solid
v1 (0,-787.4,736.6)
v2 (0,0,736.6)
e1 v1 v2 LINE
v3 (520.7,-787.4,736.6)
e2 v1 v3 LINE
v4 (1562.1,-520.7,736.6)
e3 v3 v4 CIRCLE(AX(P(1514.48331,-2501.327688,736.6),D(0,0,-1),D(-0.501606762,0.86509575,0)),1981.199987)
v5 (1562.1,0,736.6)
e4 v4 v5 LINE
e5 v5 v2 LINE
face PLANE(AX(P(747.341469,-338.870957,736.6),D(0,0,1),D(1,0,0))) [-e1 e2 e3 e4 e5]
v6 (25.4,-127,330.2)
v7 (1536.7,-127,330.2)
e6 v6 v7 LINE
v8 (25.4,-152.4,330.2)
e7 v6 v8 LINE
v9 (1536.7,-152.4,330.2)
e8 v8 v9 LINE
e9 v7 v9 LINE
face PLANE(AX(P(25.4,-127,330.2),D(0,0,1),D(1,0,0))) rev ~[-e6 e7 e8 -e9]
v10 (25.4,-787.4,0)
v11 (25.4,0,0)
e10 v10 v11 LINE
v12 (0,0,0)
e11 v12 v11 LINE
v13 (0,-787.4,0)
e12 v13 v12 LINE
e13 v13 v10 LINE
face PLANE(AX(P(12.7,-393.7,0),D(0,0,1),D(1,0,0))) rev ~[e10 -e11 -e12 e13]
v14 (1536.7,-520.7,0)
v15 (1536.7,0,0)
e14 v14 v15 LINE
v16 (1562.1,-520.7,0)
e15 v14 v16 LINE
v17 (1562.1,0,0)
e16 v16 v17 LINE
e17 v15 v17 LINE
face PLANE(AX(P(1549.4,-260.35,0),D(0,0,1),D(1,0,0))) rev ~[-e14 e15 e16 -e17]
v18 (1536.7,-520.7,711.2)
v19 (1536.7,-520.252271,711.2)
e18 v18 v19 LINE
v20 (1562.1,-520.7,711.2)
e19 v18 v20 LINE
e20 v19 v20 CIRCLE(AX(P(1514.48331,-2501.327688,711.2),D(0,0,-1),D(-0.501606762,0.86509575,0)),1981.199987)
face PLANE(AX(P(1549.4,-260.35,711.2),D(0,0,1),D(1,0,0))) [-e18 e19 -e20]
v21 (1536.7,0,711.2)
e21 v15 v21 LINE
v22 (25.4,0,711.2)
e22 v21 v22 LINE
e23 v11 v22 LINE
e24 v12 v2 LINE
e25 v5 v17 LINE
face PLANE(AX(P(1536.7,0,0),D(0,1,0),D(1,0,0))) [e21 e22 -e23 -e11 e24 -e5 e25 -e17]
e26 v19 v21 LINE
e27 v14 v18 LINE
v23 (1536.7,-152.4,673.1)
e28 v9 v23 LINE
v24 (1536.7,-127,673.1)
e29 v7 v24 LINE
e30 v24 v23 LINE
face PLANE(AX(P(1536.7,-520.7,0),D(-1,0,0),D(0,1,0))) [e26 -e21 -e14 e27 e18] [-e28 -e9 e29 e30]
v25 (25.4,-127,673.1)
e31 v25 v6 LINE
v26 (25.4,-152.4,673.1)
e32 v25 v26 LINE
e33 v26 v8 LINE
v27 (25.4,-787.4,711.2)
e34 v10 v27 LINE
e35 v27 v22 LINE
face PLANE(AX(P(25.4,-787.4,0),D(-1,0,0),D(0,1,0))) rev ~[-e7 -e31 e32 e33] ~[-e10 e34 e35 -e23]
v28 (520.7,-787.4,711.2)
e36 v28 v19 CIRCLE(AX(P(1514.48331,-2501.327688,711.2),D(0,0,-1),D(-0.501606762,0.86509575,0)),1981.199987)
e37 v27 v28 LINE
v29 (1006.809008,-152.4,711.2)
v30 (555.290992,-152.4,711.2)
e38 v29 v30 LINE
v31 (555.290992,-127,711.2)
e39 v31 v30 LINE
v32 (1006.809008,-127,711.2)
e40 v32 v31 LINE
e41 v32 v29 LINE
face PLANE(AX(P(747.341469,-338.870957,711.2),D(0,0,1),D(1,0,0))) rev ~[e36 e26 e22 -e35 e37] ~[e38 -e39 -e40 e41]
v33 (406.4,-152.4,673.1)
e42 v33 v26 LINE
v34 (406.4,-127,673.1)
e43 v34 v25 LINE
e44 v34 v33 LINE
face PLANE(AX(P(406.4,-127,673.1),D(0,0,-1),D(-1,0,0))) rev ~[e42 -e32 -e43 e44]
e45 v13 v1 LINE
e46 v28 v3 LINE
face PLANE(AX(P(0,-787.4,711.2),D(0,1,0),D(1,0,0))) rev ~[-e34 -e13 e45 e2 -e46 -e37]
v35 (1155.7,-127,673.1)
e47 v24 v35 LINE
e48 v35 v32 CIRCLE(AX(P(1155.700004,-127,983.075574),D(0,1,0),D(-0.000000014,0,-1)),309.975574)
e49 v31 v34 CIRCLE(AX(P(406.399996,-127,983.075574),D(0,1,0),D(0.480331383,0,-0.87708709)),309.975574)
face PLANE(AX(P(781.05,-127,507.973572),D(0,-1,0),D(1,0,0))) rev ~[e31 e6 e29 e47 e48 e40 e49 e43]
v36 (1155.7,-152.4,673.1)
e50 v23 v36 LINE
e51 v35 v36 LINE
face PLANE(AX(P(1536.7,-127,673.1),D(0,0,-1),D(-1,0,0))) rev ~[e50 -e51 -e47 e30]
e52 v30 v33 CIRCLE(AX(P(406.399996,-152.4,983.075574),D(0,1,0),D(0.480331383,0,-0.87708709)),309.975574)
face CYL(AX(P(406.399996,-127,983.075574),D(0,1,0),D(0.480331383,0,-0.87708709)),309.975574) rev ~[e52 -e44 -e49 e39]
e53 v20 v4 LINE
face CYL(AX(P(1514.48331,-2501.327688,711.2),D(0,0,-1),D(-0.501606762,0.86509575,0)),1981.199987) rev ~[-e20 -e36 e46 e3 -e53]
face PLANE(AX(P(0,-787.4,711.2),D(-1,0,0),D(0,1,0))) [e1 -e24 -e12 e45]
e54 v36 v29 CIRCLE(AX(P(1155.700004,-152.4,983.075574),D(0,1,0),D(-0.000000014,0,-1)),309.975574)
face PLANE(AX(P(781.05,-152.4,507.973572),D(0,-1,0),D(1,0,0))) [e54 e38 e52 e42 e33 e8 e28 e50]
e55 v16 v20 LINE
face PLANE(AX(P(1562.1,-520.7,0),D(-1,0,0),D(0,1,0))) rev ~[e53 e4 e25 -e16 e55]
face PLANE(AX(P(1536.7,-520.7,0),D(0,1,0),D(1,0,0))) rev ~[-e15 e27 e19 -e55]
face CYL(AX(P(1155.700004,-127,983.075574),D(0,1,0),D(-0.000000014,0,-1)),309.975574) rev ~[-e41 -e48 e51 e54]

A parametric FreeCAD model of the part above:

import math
import FreeCAD as App
import Part
import Sketcher
from FreeCAD import Vector
Q = App.Units.Quantity


def add_polygon(sketch, points):
    """Adds a closed chain of lines whose ends are joined by coincident constraints."""
    first, n = sketch.GeometryCount, len(points)
    for a, b in zip(points, points[1:] + points[:1]):
        sketch.addGeometry(Part.LineSegment(App.Vector(*a, 0), App.Vector(*b, 0)), False)
    for i in range(n):
        sketch.addConstraint(Sketcher.Constraint("Coincident", first + i, 2, first + (i + 1) % n, 1))

doc = App.newDocument("Part")
params = doc.addObject("Spreadsheet::Sheet", "Params")
for row, (alias, value) in enumerate([
    ("sketch1_width", "1 in"),
    ("sketch1_height", "31 in"),
    ("pad1_length", "28 in"),
    ("sketch2_height", "31 in"),
    ("sketch2_width", "61.5 in"),
    ("sketch2_width2", "20.5 in"),
    ("pad2_length", "1 in"),
    ("sketch3_width", "1 in"),
    ("sketch3_height", "20.5 in"),
    ("pad3_length", "28 in"),
    ("sketch4_width", "15 in"),
    ("sketch4_width2", "59.5 in"),
    ("sketch4_height", "13.5 in"),
    ("pad4_length", "1 in"),
], start=1):
    params.set(f"A{row}", alias)
    params.set(f"B{row}", "=" + value)
    params.setAlias(f"B{row}", alias)

body = doc.addObject("PartDesign::Body", "Body")

# Sketch on XY plane
sketch1 = doc.addObject("Sketcher::SketchObject", "Sketch")
body.addObject(sketch1)
sketch1.AttachmentSupport = (doc.XY_Plane, [""])
sketch1.MapMode = "FlatFace"
add_polygon(sketch1, [(0, 0), (0, -787), (25, -787), (25, 0)])  # lines 0-3
sketch1.addConstraint(Sketcher.Constraint("Vertical", 0))
sketch1.addConstraint(Sketcher.Constraint("Horizontal", 1))
sketch1.addConstraint(Sketcher.Constraint("Vertical", 2))
sketch1.addConstraint(Sketcher.Constraint("Horizontal", 3))
sketch1.addConstraint(Sketcher.Constraint("Coincident", 3, 2, -1, 1))
sketch1.addConstraint(Sketcher.Constraint("DistanceX", 1, 1, 1, 2, Q("1 in")))
sketch1.addConstraint(Sketcher.Constraint("DistanceY", 0, 2, 0, 1, Q("31 in")))
sketch1.setExpression("Constraints[9]", "Params.sketch1_width")
sketch1.setExpression("Constraints[10]", "Params.sketch1_height")
pad1 = doc.addObject("PartDesign::Pad", "Pad")
body.addObject(pad1)
pad1.Profile = sketch1
pad1.setExpression("Length", "Params.pad1_length")

# Sketch on XY plane
sketch2 = doc.addObject("Sketcher::SketchObject", "Sketch001")
body.addObject(sketch2)
sketch2.AttachmentSupport = (doc.XY_Plane, [""])
sketch2.MapMode = "FlatFace"
sketch2.AttachmentOffset = App.Placement(Vector(0, 0, 28 * 25.4), App.Rotation())
sketch2.addGeometry(Part.LineSegment(Vector(1562, 0, 0), Vector(0, 0, 0)), False)
sketch2.addGeometry(Part.LineSegment(Vector(0, 0, 0), Vector(0, -787, 0)), False)
sketch2.addGeometry(Part.LineSegment(Vector(0, -787, 0), Vector(521, -787, 0)), False)
sketch2.addGeometry(Part.ArcOfCircle(Part.Circle(Vector(1514, -2501, 0), Vector(0, 0, 1), 1981), math.radians(89), math.radians(120)), False)
sketch2.addGeometry(Part.LineSegment(Vector(1562, -521, 0), Vector(1562, 0, 0)), False)
sketch2.addConstraint(Sketcher.Constraint("Coincident", 0, 2, 1, 1))
sketch2.addConstraint(Sketcher.Constraint("Coincident", 1, 2, 2, 1))
sketch2.addConstraint(Sketcher.Constraint("Coincident", 2, 2, 3, 2))
sketch2.addConstraint(Sketcher.Constraint("Coincident", 3, 1, 4, 1))
sketch2.addConstraint(Sketcher.Constraint("Coincident", 4, 2, 0, 1))
sketch2.addConstraint(Sketcher.Constraint("Horizontal", 0))
sketch2.addConstraint(Sketcher.Constraint("Vertical", 1))
sketch2.addConstraint(Sketcher.Constraint("Horizontal", 2))
sketch2.addConstraint(Sketcher.Constraint("Vertical", 4))
sketch2.addConstraint(Sketcher.Constraint("Coincident", 0, 2, -1, 1))
sketch2.addConstraint(Sketcher.Constraint("Equal", 2, 4))
sketch2.addConstraint(Sketcher.Constraint("DistanceY", 1, 2, 1, 1, Q("31 in")))
sketch2.addConstraint(Sketcher.Constraint("DistanceX", 0, 2, 0, 1, Q("61.5 in")))
sketch2.addConstraint(Sketcher.Constraint("DistanceX", 2, 1, 2, 2, Q("20.5 in")))
sketch2.addConstraint(Sketcher.Constraint("Radius", 3, Q("1981.199987 mm")))
sketch2.setExpression("Constraints[11]", "Params.sketch2_height")
sketch2.setExpression("Constraints[12]", "Params.sketch2_width")
sketch2.setExpression("Constraints[13]", "Params.sketch2_width2")
pad2 = doc.addObject("PartDesign::Pad", "Pad001")
body.addObject(pad2)
pad2.Profile = sketch2
pad2.setExpression("Length", "Params.pad2_length")

# Sketch on XY plane
sketch3 = doc.addObject("Sketcher::SketchObject", "Sketch002")
body.addObject(sketch3)
sketch3.AttachmentSupport = (doc.XY_Plane, [""])
sketch3.MapMode = "FlatFace"
add_polygon(sketch3, [(1537, 0), (1537, -521), (1562, -521), (1562, 0)])  # lines 0-3
sketch3.addConstraint(Sketcher.Constraint("Vertical", 0))
sketch3.addConstraint(Sketcher.Constraint("Horizontal", 1))
sketch3.addConstraint(Sketcher.Constraint("Vertical", 2))
sketch3.addConstraint(Sketcher.Constraint("Horizontal", 3))
sketch3.addConstraint(Sketcher.Constraint("PointOnObject", 2, 2, -1))
sketch3.addConstraint(Sketcher.Constraint("DistanceX", 1, 1, 1, 2, Q("1 in")))
sketch3.addConstraint(Sketcher.Constraint("DistanceY", 0, 2, 0, 1, Q("20.5 in")))
sketch3.addConstraint(Sketcher.Constraint("DistanceX", -1, 1, 0, 2, Q("60.5 in")))
sketch3.setExpression("Constraints[9]", "Params.sketch3_width")
sketch3.setExpression("Constraints[10]", "Params.sketch3_height")
pad3 = doc.addObject("PartDesign::Pad", "Pad002")
body.addObject(pad3)
pad3.Profile = sketch3
pad3.setExpression("Length", "Params.pad3_length")

# Sketch on XZ plane
sketch4 = doc.addObject("Sketcher::SketchObject", "Sketch003")
body.addObject(sketch4)
sketch4.AttachmentSupport = (doc.XZ_Plane, [""])
sketch4.MapMode = "FlatFace"
sketch4.AttachmentOffset = App.Placement(Vector(0, 0, 5 * 25.4), App.Rotation())
sketch4.addGeometry(Part.LineSegment(Vector(25, 673, 0), Vector(25, 330, 0)), False)
sketch4.addGeometry(Part.LineSegment(Vector(25, 330, 0), Vector(1537, 330, 0)), False)
sketch4.addGeometry(Part.LineSegment(Vector(1537, 330, 0), Vector(1537, 673, 0)), False)
sketch4.addGeometry(Part.LineSegment(Vector(1537, 673, 0), Vector(1156, 673, 0)), False)
sketch4.addGeometry(Part.ArcOfCircle(Part.Circle(Vector(1156, 983, 0), Vector(0, 0, 1), 310), math.radians(-119), math.radians(-90)), False)
sketch4.addGeometry(Part.LineSegment(Vector(1007, 711, 0), Vector(555, 711, 0)), False)
sketch4.addGeometry(Part.ArcOfCircle(Part.Circle(Vector(406, 983, 0), Vector(0, 0, 1), 310), math.radians(-90), math.radians(-61)), False)
sketch4.addGeometry(Part.LineSegment(Vector(406, 673, 0), Vector(25, 673, 0)), False)
sketch4.addConstraint(Sketcher.Constraint("Coincident", 0, 2, 1, 1))
sketch4.addConstraint(Sketcher.Constraint("Coincident", 1, 2, 2, 1))
sketch4.addConstraint(Sketcher.Constraint("Coincident", 2, 2, 3, 1))
sketch4.addConstraint(Sketcher.Constraint("Tangent", 3, 2, 4, 2))
sketch4.addConstraint(Sketcher.Constraint("Coincident", 4, 1, 5, 1))
sketch4.addConstraint(Sketcher.Constraint("Coincident", 5, 2, 6, 2))
sketch4.addConstraint(Sketcher.Constraint("Tangent", 6, 1, 7, 1))
sketch4.addConstraint(Sketcher.Constraint("Coincident", 7, 2, 0, 1))
sketch4.addConstraint(Sketcher.Constraint("Vertical", 0))
sketch4.addConstraint(Sketcher.Constraint("Horizontal", 1))
sketch4.addConstraint(Sketcher.Constraint("Vertical", 2))
sketch4.addConstraint(Sketcher.Constraint("Horizontal", 3))
sketch4.addConstraint(Sketcher.Constraint("Horizontal", 5))
sketch4.addConstraint(Sketcher.Constraint("Horizontal", 7))
sketch4.addConstraint(Sketcher.Constraint("Equal", 4, 6))
sketch4.addConstraint(Sketcher.Constraint("Horizontal", 4, 3, 6, 3))
sketch4.addConstraint(Sketcher.Constraint("Equal", 3, 7))
sketch4.addConstraint(Sketcher.Constraint("DistanceX", 3, 2, 3, 1, Q("15 in")))
sketch4.addConstraint(Sketcher.Constraint("DistanceX", 1, 1, 1, 2, Q("59.5 in")))
sketch4.addConstraint(Sketcher.Constraint("DistanceY", 0, 2, 0, 1, Q("13.5 in")))
sketch4.addConstraint(Sketcher.Constraint("DistanceX", -1, 1, 6, 3, Q("15.9999998 in")))
sketch4.addConstraint(Sketcher.Constraint("DistanceY", -1, 1, 0, 2, Q("13 in")))
sketch4.addConstraint(Sketcher.Constraint("DistanceY", -1, 1, 4, 1, Q("28 in")))
sketch4.addConstraint(Sketcher.Constraint("DistanceX", 5, 2, 5, 1, Q("17.7762998 in")))
sketch4.setExpression("Constraints[17]", "Params.sketch4_width")
sketch4.setExpression("Constraints[18]", "Params.sketch4_width2")
sketch4.setExpression("Constraints[19]", "Params.sketch4_height")
pad4 = doc.addObject("PartDesign::Pad", "Pad003")
body.addObject(pad4)
pad4.Profile = sketch4
pad4.setExpression("Length", "Params.pad4_length")

doc.recompute()
